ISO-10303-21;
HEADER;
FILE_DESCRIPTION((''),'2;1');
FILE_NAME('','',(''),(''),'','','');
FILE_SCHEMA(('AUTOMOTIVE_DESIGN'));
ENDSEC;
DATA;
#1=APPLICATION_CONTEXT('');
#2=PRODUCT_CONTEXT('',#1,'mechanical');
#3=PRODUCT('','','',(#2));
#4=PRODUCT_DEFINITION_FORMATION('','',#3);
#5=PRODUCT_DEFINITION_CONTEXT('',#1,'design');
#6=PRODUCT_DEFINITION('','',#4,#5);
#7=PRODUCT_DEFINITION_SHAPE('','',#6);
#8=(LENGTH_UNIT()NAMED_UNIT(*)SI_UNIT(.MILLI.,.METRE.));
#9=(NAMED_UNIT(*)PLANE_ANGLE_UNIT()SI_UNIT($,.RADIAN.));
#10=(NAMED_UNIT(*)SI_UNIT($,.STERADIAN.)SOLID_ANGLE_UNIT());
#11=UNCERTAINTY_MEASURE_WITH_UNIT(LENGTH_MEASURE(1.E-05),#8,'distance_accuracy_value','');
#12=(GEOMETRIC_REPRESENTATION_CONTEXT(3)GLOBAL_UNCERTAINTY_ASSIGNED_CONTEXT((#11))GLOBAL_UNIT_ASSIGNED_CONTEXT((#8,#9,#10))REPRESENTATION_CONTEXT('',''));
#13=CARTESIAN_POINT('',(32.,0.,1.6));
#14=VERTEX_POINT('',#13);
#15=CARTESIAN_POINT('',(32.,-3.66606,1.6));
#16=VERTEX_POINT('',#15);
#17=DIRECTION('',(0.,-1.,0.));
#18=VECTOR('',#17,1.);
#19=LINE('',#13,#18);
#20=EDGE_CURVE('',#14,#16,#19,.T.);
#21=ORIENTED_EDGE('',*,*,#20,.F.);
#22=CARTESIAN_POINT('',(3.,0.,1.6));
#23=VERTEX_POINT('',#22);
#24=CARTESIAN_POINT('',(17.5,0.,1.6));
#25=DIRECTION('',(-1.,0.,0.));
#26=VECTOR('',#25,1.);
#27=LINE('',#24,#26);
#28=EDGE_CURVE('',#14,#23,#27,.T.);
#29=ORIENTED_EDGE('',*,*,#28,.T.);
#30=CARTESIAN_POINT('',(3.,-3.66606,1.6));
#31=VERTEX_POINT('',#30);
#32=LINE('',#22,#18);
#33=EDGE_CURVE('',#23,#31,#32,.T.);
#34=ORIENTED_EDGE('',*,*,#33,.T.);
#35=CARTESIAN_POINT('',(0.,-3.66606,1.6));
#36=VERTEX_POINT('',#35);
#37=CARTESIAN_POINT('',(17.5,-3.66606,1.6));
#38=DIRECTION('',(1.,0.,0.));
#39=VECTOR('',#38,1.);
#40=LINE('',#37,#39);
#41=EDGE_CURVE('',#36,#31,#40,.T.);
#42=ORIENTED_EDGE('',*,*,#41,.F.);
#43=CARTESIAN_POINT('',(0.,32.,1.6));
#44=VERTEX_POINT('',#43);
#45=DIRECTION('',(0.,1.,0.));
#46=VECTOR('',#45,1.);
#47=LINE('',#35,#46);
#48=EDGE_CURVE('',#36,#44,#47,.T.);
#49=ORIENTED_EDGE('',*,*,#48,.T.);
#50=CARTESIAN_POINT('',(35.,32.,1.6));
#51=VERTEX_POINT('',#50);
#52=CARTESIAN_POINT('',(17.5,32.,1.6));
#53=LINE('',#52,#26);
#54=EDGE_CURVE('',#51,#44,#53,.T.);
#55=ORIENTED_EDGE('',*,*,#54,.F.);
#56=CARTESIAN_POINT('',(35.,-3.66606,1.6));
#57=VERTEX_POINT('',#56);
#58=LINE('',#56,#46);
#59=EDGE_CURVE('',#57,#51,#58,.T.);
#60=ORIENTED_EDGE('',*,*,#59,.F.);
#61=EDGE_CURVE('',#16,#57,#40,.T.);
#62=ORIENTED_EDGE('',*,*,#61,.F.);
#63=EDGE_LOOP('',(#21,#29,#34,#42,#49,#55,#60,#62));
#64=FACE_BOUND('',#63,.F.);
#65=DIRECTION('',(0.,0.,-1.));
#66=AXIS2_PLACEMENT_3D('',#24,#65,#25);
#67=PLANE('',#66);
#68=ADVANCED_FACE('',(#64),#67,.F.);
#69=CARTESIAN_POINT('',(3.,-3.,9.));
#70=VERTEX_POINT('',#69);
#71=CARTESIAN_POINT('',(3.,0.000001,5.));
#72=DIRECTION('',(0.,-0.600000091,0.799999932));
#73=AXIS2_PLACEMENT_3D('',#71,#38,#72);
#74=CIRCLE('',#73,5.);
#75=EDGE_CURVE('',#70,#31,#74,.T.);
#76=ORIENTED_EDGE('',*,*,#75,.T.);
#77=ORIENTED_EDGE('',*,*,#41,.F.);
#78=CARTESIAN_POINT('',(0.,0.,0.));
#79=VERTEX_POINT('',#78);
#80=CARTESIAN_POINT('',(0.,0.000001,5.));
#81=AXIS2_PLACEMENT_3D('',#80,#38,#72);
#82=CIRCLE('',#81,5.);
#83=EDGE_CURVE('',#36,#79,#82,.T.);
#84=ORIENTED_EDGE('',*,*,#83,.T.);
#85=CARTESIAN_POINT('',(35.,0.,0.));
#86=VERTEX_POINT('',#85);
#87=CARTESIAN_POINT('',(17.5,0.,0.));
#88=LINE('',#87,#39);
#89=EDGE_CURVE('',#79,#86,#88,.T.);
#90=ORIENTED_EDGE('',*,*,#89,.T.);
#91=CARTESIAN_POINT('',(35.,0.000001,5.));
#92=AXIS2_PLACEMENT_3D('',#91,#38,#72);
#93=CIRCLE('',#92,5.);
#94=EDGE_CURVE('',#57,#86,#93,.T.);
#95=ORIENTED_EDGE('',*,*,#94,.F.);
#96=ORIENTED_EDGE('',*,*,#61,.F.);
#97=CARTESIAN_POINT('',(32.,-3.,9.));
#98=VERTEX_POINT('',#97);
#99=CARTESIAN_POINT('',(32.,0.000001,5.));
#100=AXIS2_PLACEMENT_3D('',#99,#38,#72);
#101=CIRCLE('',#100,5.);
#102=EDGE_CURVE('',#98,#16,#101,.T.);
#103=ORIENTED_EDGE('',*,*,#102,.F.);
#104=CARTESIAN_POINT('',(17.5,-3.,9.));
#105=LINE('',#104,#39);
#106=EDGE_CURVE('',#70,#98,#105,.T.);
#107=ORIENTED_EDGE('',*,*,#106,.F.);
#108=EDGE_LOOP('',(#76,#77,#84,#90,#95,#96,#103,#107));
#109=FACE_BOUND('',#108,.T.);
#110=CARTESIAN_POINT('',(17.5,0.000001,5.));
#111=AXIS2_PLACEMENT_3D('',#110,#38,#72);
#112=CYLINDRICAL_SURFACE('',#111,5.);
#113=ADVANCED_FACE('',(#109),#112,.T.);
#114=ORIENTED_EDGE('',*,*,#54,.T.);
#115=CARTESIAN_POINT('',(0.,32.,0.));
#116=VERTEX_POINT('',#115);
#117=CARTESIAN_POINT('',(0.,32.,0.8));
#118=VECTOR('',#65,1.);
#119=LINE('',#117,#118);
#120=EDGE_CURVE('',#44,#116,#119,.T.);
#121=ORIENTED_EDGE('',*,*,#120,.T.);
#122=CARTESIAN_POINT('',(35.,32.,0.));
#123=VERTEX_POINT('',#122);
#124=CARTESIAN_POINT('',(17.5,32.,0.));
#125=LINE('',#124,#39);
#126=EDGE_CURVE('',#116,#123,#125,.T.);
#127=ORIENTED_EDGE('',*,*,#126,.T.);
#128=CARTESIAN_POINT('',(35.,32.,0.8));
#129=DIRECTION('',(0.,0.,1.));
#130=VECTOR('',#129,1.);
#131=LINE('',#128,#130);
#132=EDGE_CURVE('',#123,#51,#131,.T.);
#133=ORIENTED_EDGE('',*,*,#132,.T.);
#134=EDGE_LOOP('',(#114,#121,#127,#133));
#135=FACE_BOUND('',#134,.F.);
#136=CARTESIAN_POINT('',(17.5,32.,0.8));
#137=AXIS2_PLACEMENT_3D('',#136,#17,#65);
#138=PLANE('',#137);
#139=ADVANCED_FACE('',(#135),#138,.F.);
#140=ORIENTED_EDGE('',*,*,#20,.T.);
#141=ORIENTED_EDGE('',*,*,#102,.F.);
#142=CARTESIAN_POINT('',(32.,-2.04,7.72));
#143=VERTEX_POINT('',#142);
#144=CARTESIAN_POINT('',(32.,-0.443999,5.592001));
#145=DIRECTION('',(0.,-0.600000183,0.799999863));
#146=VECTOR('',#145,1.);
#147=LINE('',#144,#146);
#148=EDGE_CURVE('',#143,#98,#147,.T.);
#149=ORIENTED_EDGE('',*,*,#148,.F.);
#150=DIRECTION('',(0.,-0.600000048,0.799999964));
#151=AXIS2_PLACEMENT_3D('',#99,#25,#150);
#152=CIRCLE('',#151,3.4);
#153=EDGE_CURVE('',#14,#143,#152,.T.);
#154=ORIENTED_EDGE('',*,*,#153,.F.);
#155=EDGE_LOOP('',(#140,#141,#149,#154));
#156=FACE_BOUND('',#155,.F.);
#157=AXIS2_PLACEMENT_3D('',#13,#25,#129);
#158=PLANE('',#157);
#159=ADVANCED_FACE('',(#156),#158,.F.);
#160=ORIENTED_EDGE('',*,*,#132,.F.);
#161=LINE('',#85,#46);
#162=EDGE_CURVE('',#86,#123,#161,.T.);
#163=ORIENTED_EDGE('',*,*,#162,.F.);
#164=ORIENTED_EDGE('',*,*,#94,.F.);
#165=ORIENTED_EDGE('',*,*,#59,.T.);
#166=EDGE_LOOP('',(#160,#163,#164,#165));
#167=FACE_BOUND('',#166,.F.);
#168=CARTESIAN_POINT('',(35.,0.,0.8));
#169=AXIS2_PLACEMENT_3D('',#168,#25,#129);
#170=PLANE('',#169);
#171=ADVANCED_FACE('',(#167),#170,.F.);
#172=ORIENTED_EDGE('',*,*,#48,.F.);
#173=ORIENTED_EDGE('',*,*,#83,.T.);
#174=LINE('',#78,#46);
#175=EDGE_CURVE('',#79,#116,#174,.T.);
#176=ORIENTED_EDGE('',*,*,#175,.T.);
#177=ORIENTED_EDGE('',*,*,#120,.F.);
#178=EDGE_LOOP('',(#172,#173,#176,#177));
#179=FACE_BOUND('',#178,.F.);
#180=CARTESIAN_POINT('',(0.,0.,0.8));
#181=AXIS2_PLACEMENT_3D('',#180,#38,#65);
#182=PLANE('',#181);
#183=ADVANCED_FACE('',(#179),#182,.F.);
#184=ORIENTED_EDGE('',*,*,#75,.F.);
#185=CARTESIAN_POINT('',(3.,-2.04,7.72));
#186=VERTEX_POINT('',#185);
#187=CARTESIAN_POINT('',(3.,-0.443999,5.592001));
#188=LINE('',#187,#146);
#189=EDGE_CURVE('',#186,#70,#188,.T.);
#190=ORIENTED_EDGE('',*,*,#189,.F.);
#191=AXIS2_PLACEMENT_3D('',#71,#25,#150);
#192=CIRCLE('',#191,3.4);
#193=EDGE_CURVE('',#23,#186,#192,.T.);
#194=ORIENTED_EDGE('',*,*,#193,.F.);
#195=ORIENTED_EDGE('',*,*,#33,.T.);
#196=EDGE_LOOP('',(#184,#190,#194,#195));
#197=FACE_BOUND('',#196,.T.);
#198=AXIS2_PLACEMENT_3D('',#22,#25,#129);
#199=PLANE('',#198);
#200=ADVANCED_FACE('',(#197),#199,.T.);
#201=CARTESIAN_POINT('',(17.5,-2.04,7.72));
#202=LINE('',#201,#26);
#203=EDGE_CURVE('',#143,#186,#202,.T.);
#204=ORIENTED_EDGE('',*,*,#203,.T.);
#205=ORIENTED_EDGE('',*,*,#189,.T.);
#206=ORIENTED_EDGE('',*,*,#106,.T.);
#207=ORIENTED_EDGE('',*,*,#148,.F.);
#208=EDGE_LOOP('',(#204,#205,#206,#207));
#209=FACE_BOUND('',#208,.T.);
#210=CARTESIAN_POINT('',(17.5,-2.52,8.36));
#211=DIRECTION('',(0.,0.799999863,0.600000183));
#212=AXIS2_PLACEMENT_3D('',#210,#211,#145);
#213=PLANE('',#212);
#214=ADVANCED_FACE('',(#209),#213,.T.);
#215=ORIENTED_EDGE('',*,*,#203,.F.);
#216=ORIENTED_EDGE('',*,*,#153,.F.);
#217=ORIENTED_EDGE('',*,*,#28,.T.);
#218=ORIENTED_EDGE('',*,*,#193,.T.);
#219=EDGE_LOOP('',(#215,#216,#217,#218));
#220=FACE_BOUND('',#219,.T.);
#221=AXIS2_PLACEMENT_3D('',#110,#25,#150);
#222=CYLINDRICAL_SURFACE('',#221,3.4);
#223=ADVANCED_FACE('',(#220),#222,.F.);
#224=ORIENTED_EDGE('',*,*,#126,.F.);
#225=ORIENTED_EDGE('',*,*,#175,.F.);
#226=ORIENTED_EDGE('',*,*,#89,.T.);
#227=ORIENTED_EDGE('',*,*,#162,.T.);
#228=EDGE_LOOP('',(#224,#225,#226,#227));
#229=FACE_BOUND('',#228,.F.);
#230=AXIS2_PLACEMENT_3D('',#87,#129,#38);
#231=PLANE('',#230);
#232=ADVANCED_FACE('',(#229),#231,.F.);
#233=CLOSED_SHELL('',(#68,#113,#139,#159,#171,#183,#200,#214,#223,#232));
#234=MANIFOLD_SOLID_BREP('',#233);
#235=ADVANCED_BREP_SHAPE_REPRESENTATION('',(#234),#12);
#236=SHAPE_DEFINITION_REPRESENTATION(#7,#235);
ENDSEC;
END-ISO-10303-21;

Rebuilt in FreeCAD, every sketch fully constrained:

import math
import FreeCAD as App
import Part
import Sketcher
from FreeCAD import Vector
Q = App.Units.Quantity

doc = App.newDocument("Part")
params = doc.addObject("Spreadsheet::Sheet", "Params")
for row, (alias, value) in enumerate([
    ("sketch1_width", "35 mm"),
    ("sketch1_height", "1.6 mm"),
    ("sketch2_radius", "5 mm"),
    ("sketch3_width", "35 mm"),
    ("sketch3_height", "1.6 mm"),
    ("sketch4_height", "32 mm"),
    ("sketch5_width", "3 mm"),
    ("sketch5_height", "8 mm"),
], start=1):
    params.set(f"A{row}", alias)
    params.set(f"B{row}", "=" + value)
    params.setAlias(f"B{row}", alias)

body = doc.addObject("PartDesign::Body", "Body")

# Sketch on XZ plane
sketch1 = body.newObject("Sketcher::SketchObject", "Sketch")
sketch1.AttachmentSupport = (doc.getObject("XZ_Plane"), [""])
sketch1.MapMode = "FlatFace"
sketch1.addGeometry([
    Part.LineSegment(Vector(0, 1.6, 0), Vector(0, 0, 0)),
    Part.LineSegment(Vector(0, 0, 0), Vector(35, 0, 0)),
    Part.LineSegment(Vector(35, 0, 0), Vector(35, 1.6, 0)),
    Part.LineSegment(Vector(35, 1.6, 0), Vector(0, 1.6, 0)),
], False)
sketch1.addConstraint([
    Sketcher.Constraint("Coincident", 0, 2, 1, 1),
    Sketcher.Constraint("Coincident", 1, 2, 2, 1),
    Sketcher.Constraint("Coincident", 2, 2, 3, 1),
    Sketcher.Constraint("Coincident", 3, 2, 0, 1),
    Sketcher.Constraint("Vertical", 0),
    Sketcher.Constraint("Horizontal", 1),
    Sketcher.Constraint("Vertical", 2),
    Sketcher.Constraint("Horizontal", 3),
    Sketcher.Constraint("Coincident", 0, 2, -1, 1),
    Sketcher.Constraint("DistanceX", 1, 1, 1, 2, Q("35 mm")),
    Sketcher.Constraint("DistanceY", 0, 2, 0, 1, Q("1.6 mm")),
])
sketch1.setExpression("Constraints[9]", "Params.sketch1_width")
sketch1.setExpression("Constraints[10]", "Params.sketch1_height")

# Sketch on YZ plane
sketch2 = body.newObject("Sketcher::SketchObject", "Sketch001")
sketch2.AttachmentSupport = (doc.getObject("YZ_Plane"), [""])
sketch2.MapMode = "FlatFace"
sketch2.addGeometry(Part.ArcOfCircle(Part.Circle(Vector(0.000001, 5, 0), Vector(0, 0, 1), 5), math.radians(126.869904), math.radians(269.999993)), False)
sketch2.addConstraint([
    Sketcher.Constraint("Coincident", 0, 2, -1, 1),
    Sketcher.Constraint("PointOnObject", 0, 3, -2),
    Sketcher.Constraint("Radius", 0, Q("5 mm")),
    Sketcher.Constraint("DistanceX", 0, 1, -1, 1, Q("3 mm")),
])
sketch2.setExpression("Constraints[2]", "Params.sketch2_radius")
doc.recompute()

additivepipe = body.newObject("PartDesign::AdditivePipe", "AdditivePipe")
additivepipe.Profile = sketch1
additivepipe.Spine = (sketch2, ["Edge1"])

# Sketch on XZ plane
sketch3 = body.newObject("Sketcher::SketchObject", "Sketch002")
sketch3.AttachmentSupport = (doc.getObject("XZ_Plane"), [""])
sketch3.MapMode = "FlatFace"
sketch3.addGeometry([
    Part.LineSegment(Vector(0, 1.6, 0), Vector(0, 0, 0)),
    Part.LineSegment(Vector(0, 0, 0), Vector(35, 0, 0)),
    Part.LineSegment(Vector(35, 0, 0), Vector(35, 1.6, 0)),
    Part.LineSegment(Vector(35, 1.6, 0), Vector(0, 1.6, 0)),
], False)
sketch3.addConstraint([
    Sketcher.Constraint("Coincident", 0, 2, 1, 1),
    Sketcher.Constraint("Coincident", 1, 2, 2, 1),
    Sketcher.Constraint("Coincident", 2, 2, 3, 1),
    Sketcher.Constraint("Coincident", 3, 2, 0, 1),
    Sketcher.Constraint("Vertical", 0),
    Sketcher.Constraint("Horizontal", 1),
    Sketcher.Constraint("Vertical", 2),
    Sketcher.Constraint("Horizontal", 3),
    Sketcher.Constraint("Coincident", 0, 2, -1, 1),
    Sketcher.Constraint("DistanceX", 1, 1, 1, 2, Q("35 mm")),
    Sketcher.Constraint("DistanceY", 0, 2, 0, 1, Q("1.6 mm")),
])
sketch3.setExpression("Constraints[9]", "Params.sketch3_width")
sketch3.setExpression("Constraints[10]", "Params.sketch3_height")

# Sketch on XY plane
sketch4 = body.newObject("Sketcher::SketchObject", "Sketch003")
sketch4.AttachmentSupport = (doc.getObject("XY_Plane"), [""])
sketch4.MapMode = "FlatFace"
sketch4.addGeometry(Part.LineSegment(Vector(0, 0, 0), Vector(0, 32, 0)), False)
sketch4.addConstraint([
    Sketcher.Constraint("Vertical", 0),
    Sketcher.Constraint("Coincident", 0, 1, -1, 1),
    Sketcher.Constraint("DistanceY", 0, 1, 0, 2, Q("32 mm")),
])
sketch4.setExpression("Constraints[2]", "Params.sketch4_height")
doc.recompute()

additivepipe2 = body.newObject("PartDesign::AdditivePipe", "AdditivePipe001")
additivepipe2.Profile = sketch3
additivepipe2.Spine = (sketch4, ["Edge1"])

# Sketch on XZ plane
sketch5 = body.newObject("Sketcher::SketchObject", "Sketch004")
sketch5.AttachmentSupport = (doc.getObject("XZ_Plane"), [""])
sketch5.MapMode = "FlatFace"
sketch5.addGeometry([
    Part.LineSegment(Vector(0, 9.6, 0), Vector(0, 1.6, 0)),  # 0
    Part.LineSegment(Vector(0, 1.6, 0), Vector(3, 1.6, 0)),  # 1
    Part.LineSegment(Vector(3, 1.6, 0), Vector(3, 9.6, 0)),  # 2
    Part.LineSegment(Vector(3, 9.6, 0), Vector(0, 9.6, 0)),  # 3
    Part.LineSegment(Vector(32, 9.6, 0), Vector(32, 1.6, 0)),  # 4
    Part.LineSegment(Vector(32, 1.6, 0), Vector(35, 1.6, 0)),  # 5
    Part.LineSegment(Vector(35, 1.6, 0), Vector(35, 9.6, 0)),  # 6
    Part.LineSegment(Vector(35, 9.6, 0), Vector(32, 9.6, 0)),  # 7
], False)
sketch5.addConstraint([
    Sketcher.Constraint("Coincident", 0, 2, 1, 1),
    Sketcher.Constraint("Coincident", 1, 2, 2, 1),
    Sketcher.Constraint("Coincident", 2, 2, 3, 1),
    Sketcher.Constraint("Coincident", 3, 2, 0, 1),
    Sketcher.Constraint("Coincident", 4, 2, 5, 1),
    Sketcher.Constraint("Coincident", 5, 2, 6, 1),
    Sketcher.Constraint("Coincident", 6, 2, 7, 1),
    Sketcher.Constraint("Coincident", 7, 2, 4, 1),
    Sketcher.Constraint("Vertical", 0),
    Sketcher.Constraint("Horizontal", 1),
    Sketcher.Constraint("Vertical", 2),
    Sketcher.Constraint("Horizontal", 3),
    Sketcher.Constraint("Vertical", 4),
    Sketcher.Constraint("Horizontal", 5),
    Sketcher.Constraint("Vertical", 6),
    Sketcher.Constraint("Horizontal", 7),
    Sketcher.Constraint("PointOnObject", 0, 2, -2),
    Sketcher.Constraint("Horizontal", 1, 2, 4, 2),
    Sketcher.Constraint("Horizontal", 3, 2, 6, 2),
    Sketcher.Constraint("Equal", 3, 5),
    Sketcher.Constraint("DistanceX", 1, 1, 1, 2, Q("3 mm")),
    Sketcher.Constraint("DistanceY", 0, 2, 0, 1, Q("8 mm")),
    Sketcher.Constraint("DistanceX", -1, 1, 4, 2, Q("32 mm")),
    Sketcher.Constraint("DistanceY", -1, 1, 0, 2, Q("1.6 mm")),
])
sketch5.setExpression("Constraints[20]", "Params.sketch5_width")
sketch5.setExpression("Constraints[21]", "Params.sketch5_height")
pocket1 = body.newObject("PartDesign::Pocket", "Pocket")
pocket1.Profile = sketch5
pocket1.Type = "ThroughAll"
pocket1.Reversed = True

doc.recompute()
